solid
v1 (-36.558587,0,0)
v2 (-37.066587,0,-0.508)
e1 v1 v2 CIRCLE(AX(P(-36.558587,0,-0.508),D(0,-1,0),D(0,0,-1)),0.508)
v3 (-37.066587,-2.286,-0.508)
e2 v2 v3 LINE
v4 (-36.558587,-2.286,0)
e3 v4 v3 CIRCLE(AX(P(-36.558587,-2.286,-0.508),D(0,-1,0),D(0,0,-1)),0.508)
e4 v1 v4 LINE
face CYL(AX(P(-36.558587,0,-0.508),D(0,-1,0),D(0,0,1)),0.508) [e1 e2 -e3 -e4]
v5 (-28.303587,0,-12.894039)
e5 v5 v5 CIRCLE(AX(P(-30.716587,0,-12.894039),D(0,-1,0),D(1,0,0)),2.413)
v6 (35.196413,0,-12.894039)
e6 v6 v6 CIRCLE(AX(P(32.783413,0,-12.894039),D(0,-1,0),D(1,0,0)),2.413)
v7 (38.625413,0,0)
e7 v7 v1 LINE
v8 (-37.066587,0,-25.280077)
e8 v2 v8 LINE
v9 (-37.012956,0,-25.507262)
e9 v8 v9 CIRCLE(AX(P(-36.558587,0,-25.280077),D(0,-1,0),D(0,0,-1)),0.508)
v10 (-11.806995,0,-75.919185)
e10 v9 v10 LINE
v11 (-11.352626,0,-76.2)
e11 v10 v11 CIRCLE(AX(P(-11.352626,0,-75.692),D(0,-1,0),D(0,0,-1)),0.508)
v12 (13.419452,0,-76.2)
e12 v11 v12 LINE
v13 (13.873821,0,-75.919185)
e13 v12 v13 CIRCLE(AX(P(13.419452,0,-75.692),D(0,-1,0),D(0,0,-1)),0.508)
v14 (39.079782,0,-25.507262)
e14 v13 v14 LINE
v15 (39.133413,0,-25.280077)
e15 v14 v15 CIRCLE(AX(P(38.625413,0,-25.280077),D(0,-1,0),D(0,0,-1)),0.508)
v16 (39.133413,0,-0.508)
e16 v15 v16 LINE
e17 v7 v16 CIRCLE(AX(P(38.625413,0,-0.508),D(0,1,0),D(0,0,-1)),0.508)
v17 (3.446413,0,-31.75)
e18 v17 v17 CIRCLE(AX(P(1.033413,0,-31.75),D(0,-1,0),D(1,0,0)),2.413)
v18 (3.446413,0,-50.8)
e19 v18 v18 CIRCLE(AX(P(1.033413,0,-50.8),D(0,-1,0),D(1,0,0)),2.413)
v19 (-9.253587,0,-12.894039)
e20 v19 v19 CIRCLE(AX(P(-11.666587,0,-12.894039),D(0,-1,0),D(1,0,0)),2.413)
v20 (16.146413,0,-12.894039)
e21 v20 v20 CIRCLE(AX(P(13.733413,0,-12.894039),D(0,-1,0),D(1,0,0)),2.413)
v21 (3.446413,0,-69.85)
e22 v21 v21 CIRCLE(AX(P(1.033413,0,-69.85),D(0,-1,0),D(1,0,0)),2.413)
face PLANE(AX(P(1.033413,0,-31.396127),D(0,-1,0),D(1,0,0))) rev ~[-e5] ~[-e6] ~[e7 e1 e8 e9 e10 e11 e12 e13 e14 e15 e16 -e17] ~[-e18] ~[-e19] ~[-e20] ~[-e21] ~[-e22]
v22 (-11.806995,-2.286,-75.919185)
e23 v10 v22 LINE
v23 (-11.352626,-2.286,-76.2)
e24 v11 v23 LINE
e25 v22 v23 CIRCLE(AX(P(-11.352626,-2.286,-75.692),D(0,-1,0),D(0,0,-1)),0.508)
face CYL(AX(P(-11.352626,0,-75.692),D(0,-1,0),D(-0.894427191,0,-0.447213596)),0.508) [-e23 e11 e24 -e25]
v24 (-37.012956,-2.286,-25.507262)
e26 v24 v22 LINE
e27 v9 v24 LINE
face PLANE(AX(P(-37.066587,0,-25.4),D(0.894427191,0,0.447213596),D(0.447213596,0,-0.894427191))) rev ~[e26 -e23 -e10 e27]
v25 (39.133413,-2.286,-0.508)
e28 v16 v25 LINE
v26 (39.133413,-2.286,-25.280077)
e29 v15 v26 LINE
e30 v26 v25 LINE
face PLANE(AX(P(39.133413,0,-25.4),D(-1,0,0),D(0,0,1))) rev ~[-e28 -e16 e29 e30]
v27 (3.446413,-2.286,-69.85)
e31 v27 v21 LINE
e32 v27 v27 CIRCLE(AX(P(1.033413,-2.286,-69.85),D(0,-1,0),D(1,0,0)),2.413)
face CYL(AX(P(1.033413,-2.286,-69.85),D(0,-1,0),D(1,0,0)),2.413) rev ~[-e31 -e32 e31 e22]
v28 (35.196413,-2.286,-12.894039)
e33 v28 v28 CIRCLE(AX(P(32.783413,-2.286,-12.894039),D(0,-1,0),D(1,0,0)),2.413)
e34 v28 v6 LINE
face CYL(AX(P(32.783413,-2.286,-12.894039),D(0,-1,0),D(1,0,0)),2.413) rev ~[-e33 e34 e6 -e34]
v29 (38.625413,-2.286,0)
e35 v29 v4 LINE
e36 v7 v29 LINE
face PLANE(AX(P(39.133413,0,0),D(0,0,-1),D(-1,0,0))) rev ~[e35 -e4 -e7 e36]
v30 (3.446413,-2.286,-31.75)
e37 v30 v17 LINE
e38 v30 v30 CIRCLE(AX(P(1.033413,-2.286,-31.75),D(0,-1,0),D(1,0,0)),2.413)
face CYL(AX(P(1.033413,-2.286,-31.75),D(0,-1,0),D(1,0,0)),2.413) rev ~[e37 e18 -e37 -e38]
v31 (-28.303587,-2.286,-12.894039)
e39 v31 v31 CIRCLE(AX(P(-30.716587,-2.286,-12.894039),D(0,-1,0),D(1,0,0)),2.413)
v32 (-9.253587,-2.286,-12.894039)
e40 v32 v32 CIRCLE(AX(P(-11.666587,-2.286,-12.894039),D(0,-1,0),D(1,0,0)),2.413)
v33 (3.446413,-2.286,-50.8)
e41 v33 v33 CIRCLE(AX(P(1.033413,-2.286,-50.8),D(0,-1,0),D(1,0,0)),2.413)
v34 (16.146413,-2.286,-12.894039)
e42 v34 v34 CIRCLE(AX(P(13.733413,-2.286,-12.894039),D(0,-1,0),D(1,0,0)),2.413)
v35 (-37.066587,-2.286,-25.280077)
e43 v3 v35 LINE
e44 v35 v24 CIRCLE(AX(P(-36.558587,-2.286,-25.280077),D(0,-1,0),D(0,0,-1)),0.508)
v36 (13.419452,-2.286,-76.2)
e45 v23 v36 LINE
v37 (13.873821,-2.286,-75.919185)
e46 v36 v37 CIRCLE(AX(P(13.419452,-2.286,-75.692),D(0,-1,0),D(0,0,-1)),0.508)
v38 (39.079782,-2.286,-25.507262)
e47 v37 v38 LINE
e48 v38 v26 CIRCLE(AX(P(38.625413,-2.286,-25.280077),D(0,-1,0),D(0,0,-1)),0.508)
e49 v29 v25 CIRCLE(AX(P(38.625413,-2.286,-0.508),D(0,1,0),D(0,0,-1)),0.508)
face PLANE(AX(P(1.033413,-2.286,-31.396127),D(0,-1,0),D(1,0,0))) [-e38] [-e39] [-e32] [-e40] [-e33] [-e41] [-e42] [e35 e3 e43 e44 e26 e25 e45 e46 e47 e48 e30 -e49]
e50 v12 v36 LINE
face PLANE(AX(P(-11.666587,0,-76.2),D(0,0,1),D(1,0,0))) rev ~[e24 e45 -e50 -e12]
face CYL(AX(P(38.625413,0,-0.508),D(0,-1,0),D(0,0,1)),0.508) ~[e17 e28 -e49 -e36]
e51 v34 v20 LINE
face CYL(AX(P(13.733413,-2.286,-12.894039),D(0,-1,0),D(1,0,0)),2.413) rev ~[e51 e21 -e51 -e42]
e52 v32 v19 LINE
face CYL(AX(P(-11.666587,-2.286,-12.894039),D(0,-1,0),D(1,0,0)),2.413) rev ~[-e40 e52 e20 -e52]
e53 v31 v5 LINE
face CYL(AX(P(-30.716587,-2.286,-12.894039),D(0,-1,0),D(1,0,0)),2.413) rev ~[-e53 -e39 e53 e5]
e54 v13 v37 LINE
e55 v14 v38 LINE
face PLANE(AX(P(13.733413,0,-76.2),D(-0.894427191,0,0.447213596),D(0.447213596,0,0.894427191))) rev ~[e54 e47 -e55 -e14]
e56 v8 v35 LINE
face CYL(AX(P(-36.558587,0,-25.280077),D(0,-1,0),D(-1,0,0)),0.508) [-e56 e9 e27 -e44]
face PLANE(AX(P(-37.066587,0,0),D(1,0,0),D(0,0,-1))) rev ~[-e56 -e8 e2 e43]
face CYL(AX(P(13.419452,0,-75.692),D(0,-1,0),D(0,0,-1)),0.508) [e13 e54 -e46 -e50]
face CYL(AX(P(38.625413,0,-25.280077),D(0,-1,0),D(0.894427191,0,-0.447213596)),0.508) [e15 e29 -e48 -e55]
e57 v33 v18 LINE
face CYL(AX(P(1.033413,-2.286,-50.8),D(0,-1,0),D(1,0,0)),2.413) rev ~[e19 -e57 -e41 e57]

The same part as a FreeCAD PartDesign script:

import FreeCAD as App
import Part
import Sketcher
Q = App.Units.Quantity


def edges_at(feature, points):
    """Names of the edges that pass closest to the given points."""
    edges = feature.Shape.Edges
    near = lambda p: min(range(len(edges)), key=lambda i: edges[i].distToShape(Part.Vertex(*p))[0])
    return sorted({f"Edge{near(p) + 1}" for p in points})

doc = App.newDocument("Part")
body = doc.addObject("PartDesign::Body", "Body")

sketch1 = body.newObject("Sketcher::SketchObject", "Sketch")
sketch1.AttachmentSupport = (doc.getObject("XZ_Plane"), [""])
sketch1.MapMode = "FlatFace"
sketch1.addGeometry(Part.LineSegment(App.Vector(39, 0, 0), App.Vector(-37, 0, 0)), False)
sketch1.addGeometry(Part.LineSegment(App.Vector(-37, 0, 0), App.Vector(-37, -25, 0)), False)
sketch1.addGeometry(Part.LineSegment(App.Vector(-37, -25, 0), App.Vector(-12, -76, 0)), False)
sketch1.addGeometry(Part.LineSegment(App.Vector(-12, -76, 0), App.Vector(14, -76, 0)), False)
sketch1.addGeometry(Part.LineSegment(App.Vector(14, -76, 0), App.Vector(39, -25, 0)), False)
sketch1.addGeometry(Part.LineSegment(App.Vector(39, -25, 0), App.Vector(39, 0, 0)), False)
sketch1.addConstraint(Sketcher.Constraint("Coincident", 0, 2, 1, 1))
sketch1.addConstraint(Sketcher.Constraint("Coincident", 1, 2, 2, 1))
sketch1.addConstraint(Sketcher.Constraint("Coincident", 2, 2, 3, 1))
sketch1.addConstraint(Sketcher.Constraint("Coincident", 3, 2, 4, 1))
sketch1.addConstraint(Sketcher.Constraint("Coincident", 4, 2, 5, 1))
sketch1.addConstraint(Sketcher.Constraint("Coincident", 5, 2, 0, 1))
sketch1.addConstraint(Sketcher.Constraint("Horizontal", 0))
sketch1.addConstraint(Sketcher.Constraint("Vertical", 1))
sketch1.addConstraint(Sketcher.Constraint("Horizontal", 3))
sketch1.addConstraint(Sketcher.Constraint("Vertical", 5))
sketch1.addConstraint(Sketcher.Constraint("PointOnObject", 0, 2, -1))
sketch1.addConstraint(Sketcher.Constraint("Horizontal", 1, 2, 4, 2))
sketch1.addConstraint(Sketcher.Constraint("Equal", 3, 1))
sketch1.addConstraint(Sketcher.Constraint("Equal", 2, 4))
sketch1.addConstraint(Sketcher.Constraint("DistanceX", 0, 2, 0, 1, Q("3 in")))
sketch1.addConstraint(Sketcher.Constraint("DistanceX", 3, 1, 3, 2, Q("1 in")))
sketch1.addConstraint(Sketcher.Constraint("DistanceY", 2, 2, -1, 1, Q("3 in")))
sketch1.addConstraint(Sketcher.Constraint("DistanceX", 0, 2, -1, 1, 37.066587))
pad1 = body.newObject("PartDesign::Pad", "Pad")
pad1.Profile = sketch1
pad1.Length = Q("0.09 in")
doc.recompute()

fillet = body.newObject("PartDesign::Fillet", "Fillet")
fillet.Base = (pad1, edges_at(pad1, [
    (-37.067, -1.143, 0),
    (-37.067, -1.143, -25.4),
    (39.133, -1.143, 0),
    (39.133, -1.143, -25.4),
    (13.733, -1.143, -76.2),
    (-11.667, -1.143, -76.2),
]))
fillet.Radius = Q("0.02 in")

sketch2 = body.newObject("Sketcher::SketchObject", "Sketch001")
sketch2.AttachmentSupport = (doc.getObject("XZ_Plane"), [""])
sketch2.MapMode = "FlatFace"
sketch2.AttachmentOffset = App.Placement(App.Vector(0, 0, 0.09 * 25.4), App.Rotation())
sketch2.addGeometry(Part.Circle(App.Vector(-30.7, -12.9, 0), App.Vector(0, 0, 1), 2.4), False)
sketch2.addGeometry(Part.Circle(App.Vector(-11.7, -12.9, 0), App.Vector(0, 0, 1), 2.4), False)
sketch2.addGeometry(Part.Circle(App.Vector(13.7, -12.9, 0), App.Vector(0, 0, 1), 2.4), False)
sketch2.addGeometry(Part.Circle(App.Vector(32.8, -12.9, 0), App.Vector(0, 0, 1), 2.4), False)
sketch2.addGeometry(Part.Circle(App.Vector(1, -31.8, 0), App.Vector(0, 0, 1), 2.4), False)
sketch2.addGeometry(Part.Circle(App.Vector(1, -50.8, 0), App.Vector(0, 0, 1), 2.4), False)
sketch2.addGeometry(Part.Circle(App.Vector(1, -69.8, 0), App.Vector(0, 0, 1), 2.4), False)
sketch2.addConstraint(Sketcher.Constraint("Equal", 0, 1))
sketch2.addConstraint(Sketcher.Constraint("Equal", 1, 2))
sketch2.addConstraint(Sketcher.Constraint("Equal", 2, 3))
sketch2.addConstraint(Sketcher.Constraint("Equal", 3, 4))
sketch2.addConstraint(Sketcher.Constraint("Equal", 4, 5))
sketch2.addConstraint(Sketcher.Constraint("Equal", 5, 6))
sketch2.addConstraint(Sketcher.Constraint("Horizontal", 0, 3, 1, 3))
sketch2.addConstraint(Sketcher.Constraint("Horizontal", 1, 3, 2, 3))
sketch2.addConstraint(Sketcher.Constraint("Horizontal", 2, 3, 3, 3))
sketch2.addConstraint(Sketcher.Constraint("Vertical", 4, 3, 5, 3))
sketch2.addConstraint(Sketcher.Constraint("Vertical", 5, 3, 6, 3))
sketch2.addConstraint(Sketcher.Constraint("Diameter", 0, Q("0.19 in")))
sketch2.addConstraint(Sketcher.Constraint("DistanceY", 5, 3, -1, 1, Q("2 in")))
sketch2.addConstraint(Sketcher.Constraint("DistanceX", 1, 3, 2, 3, Q("1 in")))
sketch2.addConstraint(Sketcher.Constraint("DistanceX", 0, 3, 3, 3, Q("2.5 in")))
sketch2.addConstraint(Sketcher.Constraint("DistanceX", 1, 3, 4, 3, Q("0.5 in")))
sketch2.addConstraint(Sketcher.Constraint("DistanceY", 6, 3, 4, 3, Q("1.5 in")))
sketch2.addConstraint(Sketcher.Constraint("DistanceY", 4, 3, -1, 1, Q("1.25 in")))
sketch2.addConstraint(Sketcher.Constraint("DistanceX", 0, 3, 1, 3, Q("0.75 in")))
sketch2.addConstraint(Sketcher.Constraint("DistanceY", 0, 3, -1, 1, 12.894039))
sketch2.addConstraint(Sketcher.Constraint("DistanceX", 0, 3, -1, 1, 30.716587))
pocket1 = body.newObject("PartDesign::Pocket", "Pocket")
pocket1.Profile = sketch2
pocket1.Length = Q("0.09 in")

doc.recompute()
